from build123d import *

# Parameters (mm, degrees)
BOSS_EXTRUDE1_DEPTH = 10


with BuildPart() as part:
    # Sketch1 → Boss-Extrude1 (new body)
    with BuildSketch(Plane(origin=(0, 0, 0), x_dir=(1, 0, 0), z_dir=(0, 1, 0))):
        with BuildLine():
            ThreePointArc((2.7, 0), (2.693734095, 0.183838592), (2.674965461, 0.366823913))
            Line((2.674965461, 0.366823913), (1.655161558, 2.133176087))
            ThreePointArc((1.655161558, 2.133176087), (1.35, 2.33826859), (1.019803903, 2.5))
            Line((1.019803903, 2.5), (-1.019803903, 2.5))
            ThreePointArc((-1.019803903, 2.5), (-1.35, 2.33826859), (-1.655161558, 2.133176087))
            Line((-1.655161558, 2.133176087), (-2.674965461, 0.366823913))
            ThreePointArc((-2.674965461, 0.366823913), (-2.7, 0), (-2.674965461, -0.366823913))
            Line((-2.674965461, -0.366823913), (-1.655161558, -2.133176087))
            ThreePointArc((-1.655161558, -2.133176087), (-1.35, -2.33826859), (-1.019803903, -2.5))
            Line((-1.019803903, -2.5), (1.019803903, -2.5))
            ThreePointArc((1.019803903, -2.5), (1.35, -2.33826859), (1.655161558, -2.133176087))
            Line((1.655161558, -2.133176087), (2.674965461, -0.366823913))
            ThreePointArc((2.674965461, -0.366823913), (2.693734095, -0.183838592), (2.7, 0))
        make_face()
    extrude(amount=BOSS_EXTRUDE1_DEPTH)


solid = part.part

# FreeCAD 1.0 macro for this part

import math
import FreeCAD as App
import Part
import Sketcher
from FreeCAD import Vector
Q = App.Units.Quantity

doc = App.newDocument("Part")
body = doc.addObject("PartDesign::Body", "Body")

sketch1 = body.newObject("Sketcher::SketchObject", "Sketch")
sketch1.AttachmentSupport = (doc.getObject("XZ_Plane"), [""])
sketch1.MapMode = "FlatFace"
sketch1.addGeometry([
    Part.ArcOfCircle(Part.Circle(Vector(0, 0, 0), Vector(0, 0, 1), 2.7), math.radians(-7.81), math.radians(0)),
    Part.LineSegment(Vector(2.67, -0.37, 0), Vector(1.66, -2.13, 0)),
    Part.ArcOfCircle(Part.Circle(Vector(0, 0, 0), Vector(0, 0, 1), 2.7), math.radians(-67.81), math.radians(-52.19)),
    Part.LineSegment(Vector(1.02, -2.5, 0), Vector(-1.02, -2.5, 0)),
    Part.ArcOfCircle(Part.Circle(Vector(0, 0, 0), Vector(0, 0, 1), 2.7), math.radians(-127.81), math.radians(-112.19)),
    Part.LineSegment(Vector(-1.66, -2.13, 0), Vector(-2.67, -0.37, 0)),
    Part.ArcOfCircle(Part.Circle(Vector(0, 0, 0), Vector(0, 0, 1), 2.7), math.radians(172.19), math.radians(187.81)),
    Part.LineSegment(Vector(-2.67, 0.37, 0), Vector(-1.66, 2.13, 0)),
    Part.ArcOfCircle(Part.Circle(Vector(0, 0, 0), Vector(0, 0, 1), 2.7), math.radians(112.19), math.radians(127.81)),
    Part.LineSegment(Vector(-1.02, 2.5, 0), Vector(1.02, 2.5, 0)),
    Part.ArcOfCircle(Part.Circle(Vector(0, 0, 0), Vector(0, 0, 1), 2.7), math.radians(52.19), math.radians(67.81)),
    Part.LineSegment(Vector(1.66, 2.13, 0), Vector(2.67, 0.37, 0)),
    Part.ArcOfCircle(Part.Circle(Vector(0, 0, 0), Vector(0, 0, 1), 2.7), math.radians(0), math.radians(7.81)),
], False)
sketch1.addConstraint([
    Sketcher.Constraint("Coincident", 0, 1, 1, 1),
    Sketcher.Constraint("Coincident", 1, 2, 2, 2),
    Sketcher.Constraint("Coincident", 2, 1, 3, 1),
    Sketcher.Constraint("Coincident", 3, 2, 4, 2),
    Sketcher.Constraint("Coincident", 4, 1, 5, 1),
    Sketcher.Constraint("Coincident", 5, 2, 6, 2),
    Sketcher.Constraint("Coincident", 6, 1, 7, 1),
    Sketcher.Constraint("Coincident", 7, 2, 8, 2),
    Sketcher.Constraint("Coincident", 8, 1, 9, 1),
    Sketcher.Constraint("Coincident", 9, 2, 10, 2),
    Sketcher.Constraint("Coincident", 10, 1, 11, 1),
    Sketcher.Constraint("Coincident", 11, 2, 12, 2),
    Sketcher.Constraint("Tangent", 12, 1, 0, 2),
    Sketcher.Constraint("Horizontal", 3),
    Sketcher.Constraint("Horizontal", 9),
    Sketcher.Constraint("Coincident", 0, 3, -1, 1),
    Sketcher.Constraint("Coincident", 2, 3, -1, 1),
    Sketcher.Constraint("Coincident", 4, 3, -1, 1),
    Sketcher.Constraint("Coincident", 6, 3, -1, 1),
    Sketcher.Constraint("Coincident", 8, 3, -1, 1),
    Sketcher.Constraint("Coincident", 10, 3, -1, 1),
    Sketcher.Constraint("Equal", 0, 2),
    Sketcher.Constraint("Equal", 2, 4),
    Sketcher.Constraint("Equal", 4, 6),
    Sketcher.Constraint("Equal", 6, 8),
    Sketcher.Constraint("Equal", 8, 10),
    Sketcher.Constraint("Equal", 10, 12),
    Sketcher.Constraint("PointOnObject", 12, 1, -1),
    Sketcher.Constraint("Parallel", 1, 7),
    Sketcher.Constraint("Parallel", 5, 11),
    Sketcher.Constraint("Horizontal", 1, 2, 4, 1),
    Sketcher.Constraint("Horizontal", 0, 1, 5, 2),
    Sketcher.Constraint("Horizontal", 7, 2, 10, 1),
    Sketcher.Constraint("Vertical", 5, 2, 6, 1),
    Sketcher.Constraint("Vertical", 3, 2, 8, 1),
    Sketcher.Constraint("Radius", 0, 2.7),
    Sketcher.Constraint("Angle", 1, Q("-120 deg")),
    Sketcher.Constraint("DistanceY", 2, 1, -1, 1, 2.5),
    Sketcher.Constraint("DistanceY", 4, 1, 6, 1, 2.5),
])
pad1 = body.newObject("PartDesign::Pad", "Pad")
pad1.Profile = sketch1
pad1.Length = 10
pad1.Reversed = True

doc.recompute()
